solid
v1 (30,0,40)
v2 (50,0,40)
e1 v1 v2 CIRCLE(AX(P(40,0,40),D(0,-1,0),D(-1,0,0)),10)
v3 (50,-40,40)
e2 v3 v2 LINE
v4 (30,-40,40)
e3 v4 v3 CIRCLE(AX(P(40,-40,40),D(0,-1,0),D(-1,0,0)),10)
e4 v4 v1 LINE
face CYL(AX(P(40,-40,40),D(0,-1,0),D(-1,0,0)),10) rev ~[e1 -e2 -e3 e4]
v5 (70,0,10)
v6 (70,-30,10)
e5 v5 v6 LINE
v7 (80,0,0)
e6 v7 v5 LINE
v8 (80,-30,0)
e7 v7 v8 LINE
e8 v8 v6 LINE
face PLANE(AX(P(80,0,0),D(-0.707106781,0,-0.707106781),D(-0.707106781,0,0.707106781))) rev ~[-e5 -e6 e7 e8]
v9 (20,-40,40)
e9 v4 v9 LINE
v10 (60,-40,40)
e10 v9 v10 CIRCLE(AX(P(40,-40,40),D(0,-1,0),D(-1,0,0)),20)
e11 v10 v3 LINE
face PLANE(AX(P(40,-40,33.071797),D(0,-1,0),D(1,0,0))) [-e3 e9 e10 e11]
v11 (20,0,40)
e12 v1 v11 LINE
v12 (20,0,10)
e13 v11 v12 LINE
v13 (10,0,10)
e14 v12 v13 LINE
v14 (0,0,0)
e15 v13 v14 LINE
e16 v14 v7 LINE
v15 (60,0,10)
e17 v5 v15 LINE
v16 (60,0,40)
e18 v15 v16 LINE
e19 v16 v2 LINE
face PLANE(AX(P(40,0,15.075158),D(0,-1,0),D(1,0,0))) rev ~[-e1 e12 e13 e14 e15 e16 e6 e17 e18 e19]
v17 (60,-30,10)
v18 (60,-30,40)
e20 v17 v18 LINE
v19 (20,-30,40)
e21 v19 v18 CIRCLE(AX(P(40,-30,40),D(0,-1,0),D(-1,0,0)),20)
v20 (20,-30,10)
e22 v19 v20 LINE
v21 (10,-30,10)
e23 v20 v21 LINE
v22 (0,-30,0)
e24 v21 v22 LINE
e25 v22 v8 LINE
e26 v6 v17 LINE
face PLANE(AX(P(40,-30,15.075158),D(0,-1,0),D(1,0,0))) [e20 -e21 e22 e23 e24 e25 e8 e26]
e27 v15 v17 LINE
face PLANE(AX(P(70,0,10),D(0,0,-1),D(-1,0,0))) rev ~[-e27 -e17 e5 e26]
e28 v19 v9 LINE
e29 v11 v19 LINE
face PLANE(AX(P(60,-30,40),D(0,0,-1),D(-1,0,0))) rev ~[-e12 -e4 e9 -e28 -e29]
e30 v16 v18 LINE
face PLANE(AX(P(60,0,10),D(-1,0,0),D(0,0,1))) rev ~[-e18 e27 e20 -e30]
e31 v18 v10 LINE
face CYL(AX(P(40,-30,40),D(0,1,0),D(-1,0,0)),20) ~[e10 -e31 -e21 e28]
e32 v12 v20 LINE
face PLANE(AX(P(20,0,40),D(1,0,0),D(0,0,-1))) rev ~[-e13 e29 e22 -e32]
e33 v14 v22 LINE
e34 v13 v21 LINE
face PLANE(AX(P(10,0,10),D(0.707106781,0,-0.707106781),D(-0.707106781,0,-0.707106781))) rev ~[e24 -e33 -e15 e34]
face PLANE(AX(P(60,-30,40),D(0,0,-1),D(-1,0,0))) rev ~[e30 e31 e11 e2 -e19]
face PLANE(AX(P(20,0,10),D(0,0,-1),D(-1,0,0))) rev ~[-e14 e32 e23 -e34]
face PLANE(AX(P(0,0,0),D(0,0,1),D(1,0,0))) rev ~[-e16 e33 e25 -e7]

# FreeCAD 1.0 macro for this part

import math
import FreeCAD as App
import Part
import Sketcher


def add_polygon(sketch, points):
    """Adds a closed chain of lines whose ends are joined by coincident constraints."""
    first, n = sketch.GeometryCount, len(points)
    for a, b in zip(points, points[1:] + points[:1]):
        sketch.addGeometry(Part.LineSegment(App.Vector(*a, 0), App.Vector(*b, 0)), False)
    for i in range(n):
        sketch.addConstraint(Sketcher.Constraint("Coincident", first + i, 2, first + (i + 1) % n, 1))

doc = App.newDocument("Part")
body = doc.addObject("PartDesign::Body", "Body")

sketch1 = body.newObject("Sketcher::SketchObject", "Sketch")
sketch1.AttachmentSupport = (doc.getObject("XZ_Plane"), [""])
sketch1.MapMode = "FlatFace"
add_polygon(sketch1, [(10, 10), (0, 0), (80, 0), (70, 10), (60, 10), (60, 40), (20, 40), (20, 10)])
sketch1.addConstraint([
    Sketcher.Constraint("Horizontal", 1),
    Sketcher.Constraint("Horizontal", 3),
    Sketcher.Constraint("Vertical", 4),
    Sketcher.Constraint("Horizontal", 5),
    Sketcher.Constraint("Vertical", 6),
    Sketcher.Constraint("Horizontal", 7),
    Sketcher.Constraint("Coincident", 0, 2, -1, 1),
    Sketcher.Constraint("Perpendicular", 0, 2),
    Sketcher.Constraint("Horizontal", 3, 2, 6, 2),
    Sketcher.Constraint("Equal", 3, 7),
    Sketcher.Constraint("Equal", 0, 2),
    Sketcher.Constraint("DistanceX", 1, 1, 1, 2, 80.0),
    Sketcher.Constraint("DistanceX", 3, 2, 3, 1, 10.0),
    Sketcher.Constraint("DistanceX", 5, 2, 5, 1, 40.0),
    Sketcher.Constraint("DistanceY", 4, 1, 4, 2, 30.0),
])
pad1 = body.newObject("PartDesign::Pad", "Pad")
pad1.Profile = sketch1
pad1.Length = 30

sketch2 = body.newObject("Sketcher::SketchObject", "Sketch001")
sketch2.AttachmentSupport = (doc.getObject("XZ_Plane"), [""])
sketch2.MapMode = "FlatFace"
sketch2.AttachmentOffset = App.Placement(App.Vector(0, 0, 30), App.Rotation())
sketch2.addGeometry([
    Part.ArcOfCircle(Part.Circle(App.Vector(40, 40, 0), App.Vector(0, 0, 1), 20), math.radians(180), math.radians(360)),
    Part.LineSegment(App.Vector(60, 40, 0), App.Vector(20, 40, 0)),
], False)
sketch2.addConstraint([
    Sketcher.Constraint("Coincident", 0, 1, 1, 2),
    Sketcher.Constraint("Coincident", 1, 1, 0, 2),
    Sketcher.Constraint("Horizontal", 1),
    Sketcher.Constraint("Radius", 0, 20.0),
    Sketcher.Constraint("DistanceX", -1, 1, 0, 3, 40.0),
    Sketcher.Constraint("DistanceY", -1, 1, 0, 3, 40.0),
    Sketcher.Constraint("DistanceY", -1, 1, 0, 1, 40.0),
])
pad2 = body.newObject("PartDesign::Pad", "Pad001")
pad2.Profile = sketch2
pad2.Length = 10

sketch3 = body.newObject("Sketcher::SketchObject", "Sketch002")
sketch3.AttachmentSupport = (doc.getObject("XZ_Plane"), [""])
sketch3.MapMode = "FlatFace"
sketch3.AttachmentOffset = App.Placement(App.Vector(0, 0, 40), App.Rotation())
sketch3.addGeometry([
    Part.ArcOfCircle(Part.Circle(App.Vector(40, 40, 0), App.Vector(0, 0, 1), 10), math.radians(180), math.radians(360)),
    Part.LineSegment(App.Vector(50, 40, 0), App.Vector(30, 40, 0)),
], False)
sketch3.addConstraint([
    Sketcher.Constraint("Coincident", 0, 1, 1, 2),
    Sketcher.Constraint("Coincident", 1, 1, 0, 2),
    Sketcher.Constraint("Horizontal", 1),
    Sketcher.Constraint("Radius", 0, 10.0),
    Sketcher.Constraint("DistanceX", -1, 1, 0, 3, 40.0),
    Sketcher.Constraint("DistanceY", -1, 1, 0, 3, 40.0),
    Sketcher.Constraint("DistanceY", -1, 1, 0, 1, 40.0),
])
pocket1 = body.newObject("PartDesign::Pocket", "Pocket")
pocket1.Profile = sketch3
pocket1.Type = "ThroughAll"

doc.recompute()
